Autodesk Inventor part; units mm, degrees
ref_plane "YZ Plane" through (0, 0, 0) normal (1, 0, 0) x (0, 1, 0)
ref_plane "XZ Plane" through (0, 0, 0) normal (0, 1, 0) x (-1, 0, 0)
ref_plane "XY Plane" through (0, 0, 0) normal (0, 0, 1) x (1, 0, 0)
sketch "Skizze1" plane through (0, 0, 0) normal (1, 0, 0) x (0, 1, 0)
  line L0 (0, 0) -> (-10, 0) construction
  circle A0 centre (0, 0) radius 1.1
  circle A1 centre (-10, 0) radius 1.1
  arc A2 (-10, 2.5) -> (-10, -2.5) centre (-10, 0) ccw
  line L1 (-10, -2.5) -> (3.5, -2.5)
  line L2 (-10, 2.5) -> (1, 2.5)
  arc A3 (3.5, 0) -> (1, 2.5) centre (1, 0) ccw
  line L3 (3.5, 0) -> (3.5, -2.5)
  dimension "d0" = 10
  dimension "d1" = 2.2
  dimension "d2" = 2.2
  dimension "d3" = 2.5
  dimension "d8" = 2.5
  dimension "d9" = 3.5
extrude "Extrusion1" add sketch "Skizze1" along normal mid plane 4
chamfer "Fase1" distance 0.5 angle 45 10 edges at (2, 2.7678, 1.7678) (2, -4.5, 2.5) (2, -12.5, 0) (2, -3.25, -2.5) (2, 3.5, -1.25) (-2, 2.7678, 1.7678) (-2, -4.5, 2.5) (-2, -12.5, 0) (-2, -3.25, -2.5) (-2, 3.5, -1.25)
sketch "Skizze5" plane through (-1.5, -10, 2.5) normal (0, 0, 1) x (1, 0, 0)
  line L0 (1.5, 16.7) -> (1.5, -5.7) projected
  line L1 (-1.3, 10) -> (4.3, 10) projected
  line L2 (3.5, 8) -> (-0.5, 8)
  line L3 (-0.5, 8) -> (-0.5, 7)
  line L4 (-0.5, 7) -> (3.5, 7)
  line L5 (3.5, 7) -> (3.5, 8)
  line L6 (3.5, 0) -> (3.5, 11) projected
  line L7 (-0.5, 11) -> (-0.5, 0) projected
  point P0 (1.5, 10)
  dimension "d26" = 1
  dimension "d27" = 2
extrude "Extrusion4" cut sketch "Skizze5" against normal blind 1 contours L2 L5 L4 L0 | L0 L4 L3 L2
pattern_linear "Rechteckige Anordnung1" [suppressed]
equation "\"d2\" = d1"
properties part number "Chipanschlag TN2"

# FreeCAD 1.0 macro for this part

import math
import FreeCAD as App
import Part
import Sketcher
Q = App.Units.Quantity


def edges_at(feature, points):
    """Names of the edges that pass closest to the given points."""
    edges = feature.Shape.Edges
    near = lambda p: min(range(len(edges)), key=lambda i: edges[i].distToShape(Part.Vertex(*p))[0])
    return sorted({f"Edge{near(p) + 1}" for p in points})

doc = App.newDocument("Part")
params = doc.addObject("Spreadsheet::Sheet", "Params")
for row, (alias, value) in enumerate([
    ("sketch1_diameter", "2.2 mm"),
    ("sketch1_radius", "2.5 mm"),
    ("pad1_length", "4 mm"),
    ("chamfer_size", "0.5 mm"),
    ("sketch2_height", "1 mm"),
    ("pocket1_length", "1 mm"),
], start=1):
    params.set(f"A{row}", alias)
    params.set(f"B{row}", "=" + value)
    params.setAlias(f"B{row}", alias)

body = doc.addObject("PartDesign::Body", "Body")

# Sketch on YZ plane
sketch1 = body.newObject("Sketcher::SketchObject", "Sketch")
sketch1.AttachmentSupport = (doc.getObject("YZ_Plane"), [""])
sketch1.MapMode = "FlatFace"
sketch1.addGeometry([
    Part.LineSegment(App.Vector(1, 2.5, 0), App.Vector(-10, 2.5, 0)),  # 0
    Part.ArcOfCircle(Part.Circle(App.Vector(-10, 0, 0), App.Vector(0, 0, 1), 2.5), math.radians(90), math.radians(270)),  # 1
    Part.LineSegment(App.Vector(-10, -2.5, 0), App.Vector(3.5, -2.5, 0)),  # 2
    Part.LineSegment(App.Vector(3.5, -2.5, 0), App.Vector(3.5, 0, 0)),  # 3
    Part.ArcOfCircle(Part.Circle(App.Vector(1, 0, 0), App.Vector(0, 0, 1), 2.5), math.radians(0), math.radians(90)),  # 4
    Part.Circle(App.Vector(-10, 0, 0), App.Vector(0, 0, 1), 1.1),  # 5
    Part.Circle(App.Vector(0, 0, 0), App.Vector(0, 0, 1), 1.1),  # 6
], False)
sketch1.addConstraint([
    Sketcher.Constraint("Tangent", 0, 2, 1, 1),
    Sketcher.Constraint("Tangent", 1, 2, 2, 1),
    Sketcher.Constraint("Coincident", 2, 2, 3, 1),
    Sketcher.Constraint("Tangent", 3, 2, 4, 1),
    Sketcher.Constraint("Tangent", 4, 2, 0, 1),
    Sketcher.Constraint("Horizontal", 0),
    Sketcher.Constraint("Horizontal", 2),
    Sketcher.Constraint("Vertical", 3),
    Sketcher.Constraint("Coincident", 6, 3, -1, 1),
    Sketcher.Constraint("Coincident", 5, 3, 1, 3),
    Sketcher.Constraint("Equal", 1, 4),
    Sketcher.Constraint("Equal", 5, 6),
    Sketcher.Constraint("PointOnObject", 1, 3, -1),
    Sketcher.Constraint("Diameter", 5, Q("2.2 mm")),
    Sketcher.Constraint("Radius", 1, Q("2.5 mm")),
    Sketcher.Constraint("DistanceX", 1, 3, -1, 1, Q("10 mm")),
    Sketcher.Constraint("DistanceX", -1, 1, 2, 2, Q("3.5 mm")),
])
sketch1.setExpression("Constraints[13]", "Params.sketch1_diameter")
sketch1.setExpression("Constraints[14]", "Params.sketch1_radius")
pad1 = body.newObject("PartDesign::Pad", "Pad")
pad1.Profile = sketch1
pad1.setExpression("Length", "Params.pad1_length")
pad1.Midplane = True
doc.recompute()

chamfer = body.newObject("PartDesign::Chamfer", "Chamfer")
chamfer.Base = (pad1, edges_at(pad1, [
    (2, 2.768, 1.768),
    (2, -4.5, 2.5),
    (2, -12.5, 0),
    (2, -3.25, -2.5),
    (2, 3.5, -1.25),
    (-2, 2.768, 1.768),
    (-2, -4.5, 2.5),
    (-2, -12.5, 0),
    (-2, -3.25, -2.5),
    (-2, 3.5, -1.25),
]))
chamfer.setExpression("Size", "Params.chamfer_size")

# Sketch on XY plane
sketch2 = body.newObject("Sketcher::SketchObject", "Sketch001")
sketch2.AttachmentSupport = (doc.getObject("XY_Plane"), [""])
sketch2.MapMode = "FlatFace"
sketch2.AttachmentOffset = App.Placement(App.Vector(0, 0, 2.5), App.Rotation())
sketch2.addGeometry([
    Part.LineSegment(App.Vector(2, -2, 0), App.Vector(-2, -2, 0)),
    Part.LineSegment(App.Vector(-2, -2, 0), App.Vector(-2, -3, 0)),
    Part.LineSegment(App.Vector(-2, -3, 0), App.Vector(2, -3, 0)),
    Part.LineSegment(App.Vector(2, -3, 0), App.Vector(2, -2, 0)),
], False)
sketch2.addConstraint([
    Sketcher.Constraint("Coincident", 0, 2, 1, 1),
    Sketcher.Constraint("Coincident", 1, 2, 2, 1),
    Sketcher.Constraint("Coincident", 2, 2, 3, 1),
    Sketcher.Constraint("Coincident", 3, 2, 0, 1),
    Sketcher.Constraint("Horizontal", 0),
    Sketcher.Constraint("Vertical", 1),
    Sketcher.Constraint("Horizontal", 2),
    Sketcher.Constraint("Vertical", 3),
    Sketcher.Constraint("DistanceY", 1, 2, 1, 1, Q("1 mm")),
    Sketcher.Constraint("DistanceX", 0, 2, -1, 1, Q("2 mm")),
    Sketcher.Constraint("DistanceY", 0, 2, -1, 1, Q("2 mm")),
    Sketcher.Constraint("DistanceX", -1, 1, 2, 2, Q("2 mm")),
])
sketch2.setExpression("Constraints[8]", "Params.sketch2_height")
pocket1 = body.newObject("PartDesign::Pocket", "Pocket")
pocket1.Profile = sketch2
pocket1.setExpression("Length", "Params.pocket1_length")

doc.recompute()
